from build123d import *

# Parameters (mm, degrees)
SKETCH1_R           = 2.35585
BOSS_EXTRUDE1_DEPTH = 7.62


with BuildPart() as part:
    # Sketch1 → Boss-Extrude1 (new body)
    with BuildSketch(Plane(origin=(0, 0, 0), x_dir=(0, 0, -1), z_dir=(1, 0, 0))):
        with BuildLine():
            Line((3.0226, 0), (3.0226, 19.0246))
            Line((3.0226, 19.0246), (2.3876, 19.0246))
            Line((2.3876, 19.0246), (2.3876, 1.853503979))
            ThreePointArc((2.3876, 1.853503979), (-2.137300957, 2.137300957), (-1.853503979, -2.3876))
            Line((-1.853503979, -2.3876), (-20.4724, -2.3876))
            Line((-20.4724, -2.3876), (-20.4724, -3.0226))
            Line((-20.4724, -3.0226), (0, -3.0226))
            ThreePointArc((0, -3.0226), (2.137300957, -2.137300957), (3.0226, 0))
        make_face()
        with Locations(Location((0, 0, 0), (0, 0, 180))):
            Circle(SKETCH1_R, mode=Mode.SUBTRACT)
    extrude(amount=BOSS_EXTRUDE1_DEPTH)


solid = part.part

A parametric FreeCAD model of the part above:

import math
import FreeCAD as App
import Part
import Sketcher

V = App.Vector
Q = App.Units.Quantity

doc = App.newDocument("Part")
params = doc.addObject("Spreadsheet::Sheet", "Params")
for row, (alias, value) in enumerate([
    ("sketch1_radius", "0.119 in"),
    ("sketch1_width", "0.749 in"),
    ("sketch1_width2", "0.025 in"),
    ("pad1_length", "0.3 in"),
], start=1):
    params.set(f"A{row}", alias)
    params.set(f"B{row}", "=" + value)
    params.setAlias(f"B{row}", alias)

body = doc.addObject("PartDesign::Body", "Body")

# Sketch on YZ plane
sketch1 = body.newObject("Sketcher::SketchObject", "Sketch")
sketch1.AttachmentSupport = (doc.getObject("YZ_Plane"), [""])
sketch1.MapMode = "FlatFace"
sketch1.addGeometry([
    Part.LineSegment(V(0, -3.0226, 0), V(19.0246, -3.0226, 0)),  # 0
    Part.LineSegment(V(19.0246, -3.0226, 0), V(19.0246, -2.3876, 0)),  # 1
    Part.LineSegment(V(19.0246, -2.3876, 0), V(1.853504, -2.3876, 0)),  # 2
    Part.ArcOfCircle(Part.Circle(V(0, 0, 0), V(0, 0, 1), 3.0226), math.radians(-52.177659), math.radians(142.177659)),  # 3
    Part.LineSegment(V(-2.3876, 1.853504, 0), V(-2.3876, 20.4724, 0)),  # 4
    Part.LineSegment(V(-2.3876, 20.4724, 0), V(-3.0226, 20.4724, 0)),  # 5
    Part.LineSegment(V(-3.0226, 20.4724, 0), V(-3.0226, 0, 0)),  # 6
    Part.ArcOfCircle(Part.Circle(V(0, 0, 0), V(0, 0, 1), 3.0226), math.radians(180), math.radians(270)),  # 7
    Part.Circle(V(0, 0, 0), V(0, 0, 1), 2.35585),  # 8
], False)
sketch1.addConstraint([
    Sketcher.Constraint("Coincident", 0, 2, 1, 1),
    Sketcher.Constraint("Coincident", 1, 2, 2, 1),
    Sketcher.Constraint("Coincident", 2, 2, 3, 1),
    Sketcher.Constraint("Coincident", 3, 2, 4, 1),
    Sketcher.Constraint("Coincident", 4, 2, 5, 1),
    Sketcher.Constraint("Coincident", 5, 2, 6, 1),
    Sketcher.Constraint("Tangent", 6, 2, 7, 1),
    Sketcher.Constraint("Tangent", 7, 2, 0, 1),
    Sketcher.Constraint("Horizontal", 0),
    Sketcher.Constraint("Vertical", 1),
    Sketcher.Constraint("Horizontal", 2),
    Sketcher.Constraint("Vertical", 4),
    Sketcher.Constraint("Horizontal", 5),
    Sketcher.Constraint("Vertical", 6),
    Sketcher.Constraint("Coincident", 3, 3, -1, 1),
    Sketcher.Constraint("Coincident", 7, 3, -1, 1),
    Sketcher.Constraint("Coincident", 8, 3, -1, 1),
    Sketcher.Constraint("Equal", 3, 7),
    Sketcher.Constraint("Equal", 5, 1),
    Sketcher.Constraint("Radius", 3, Q("0.119 in")),
    Sketcher.Constraint("Diameter", 8, Q("0.1855 in")),
    Sketcher.Constraint("DistanceY", 2, 2, 4, 2, Q("0.9 in")),
    Sketcher.Constraint("DistanceX", 0, 1, 0, 2, Q("0.749 in")),
    Sketcher.Constraint("DistanceX", 5, 2, 5, 1, Q("0.025 in")),
])
sketch1.setExpression("Constraints[19]", "Params.sketch1_radius")
sketch1.setExpression("Constraints[22]", "Params.sketch1_width")
sketch1.setExpression("Constraints[23]", "Params.sketch1_width2")
pad1 = body.newObject("PartDesign::Pad", "Pad")
pad1.Profile = sketch1
pad1.setExpression("Length", "Params.pad1_length")

doc.recompute()
